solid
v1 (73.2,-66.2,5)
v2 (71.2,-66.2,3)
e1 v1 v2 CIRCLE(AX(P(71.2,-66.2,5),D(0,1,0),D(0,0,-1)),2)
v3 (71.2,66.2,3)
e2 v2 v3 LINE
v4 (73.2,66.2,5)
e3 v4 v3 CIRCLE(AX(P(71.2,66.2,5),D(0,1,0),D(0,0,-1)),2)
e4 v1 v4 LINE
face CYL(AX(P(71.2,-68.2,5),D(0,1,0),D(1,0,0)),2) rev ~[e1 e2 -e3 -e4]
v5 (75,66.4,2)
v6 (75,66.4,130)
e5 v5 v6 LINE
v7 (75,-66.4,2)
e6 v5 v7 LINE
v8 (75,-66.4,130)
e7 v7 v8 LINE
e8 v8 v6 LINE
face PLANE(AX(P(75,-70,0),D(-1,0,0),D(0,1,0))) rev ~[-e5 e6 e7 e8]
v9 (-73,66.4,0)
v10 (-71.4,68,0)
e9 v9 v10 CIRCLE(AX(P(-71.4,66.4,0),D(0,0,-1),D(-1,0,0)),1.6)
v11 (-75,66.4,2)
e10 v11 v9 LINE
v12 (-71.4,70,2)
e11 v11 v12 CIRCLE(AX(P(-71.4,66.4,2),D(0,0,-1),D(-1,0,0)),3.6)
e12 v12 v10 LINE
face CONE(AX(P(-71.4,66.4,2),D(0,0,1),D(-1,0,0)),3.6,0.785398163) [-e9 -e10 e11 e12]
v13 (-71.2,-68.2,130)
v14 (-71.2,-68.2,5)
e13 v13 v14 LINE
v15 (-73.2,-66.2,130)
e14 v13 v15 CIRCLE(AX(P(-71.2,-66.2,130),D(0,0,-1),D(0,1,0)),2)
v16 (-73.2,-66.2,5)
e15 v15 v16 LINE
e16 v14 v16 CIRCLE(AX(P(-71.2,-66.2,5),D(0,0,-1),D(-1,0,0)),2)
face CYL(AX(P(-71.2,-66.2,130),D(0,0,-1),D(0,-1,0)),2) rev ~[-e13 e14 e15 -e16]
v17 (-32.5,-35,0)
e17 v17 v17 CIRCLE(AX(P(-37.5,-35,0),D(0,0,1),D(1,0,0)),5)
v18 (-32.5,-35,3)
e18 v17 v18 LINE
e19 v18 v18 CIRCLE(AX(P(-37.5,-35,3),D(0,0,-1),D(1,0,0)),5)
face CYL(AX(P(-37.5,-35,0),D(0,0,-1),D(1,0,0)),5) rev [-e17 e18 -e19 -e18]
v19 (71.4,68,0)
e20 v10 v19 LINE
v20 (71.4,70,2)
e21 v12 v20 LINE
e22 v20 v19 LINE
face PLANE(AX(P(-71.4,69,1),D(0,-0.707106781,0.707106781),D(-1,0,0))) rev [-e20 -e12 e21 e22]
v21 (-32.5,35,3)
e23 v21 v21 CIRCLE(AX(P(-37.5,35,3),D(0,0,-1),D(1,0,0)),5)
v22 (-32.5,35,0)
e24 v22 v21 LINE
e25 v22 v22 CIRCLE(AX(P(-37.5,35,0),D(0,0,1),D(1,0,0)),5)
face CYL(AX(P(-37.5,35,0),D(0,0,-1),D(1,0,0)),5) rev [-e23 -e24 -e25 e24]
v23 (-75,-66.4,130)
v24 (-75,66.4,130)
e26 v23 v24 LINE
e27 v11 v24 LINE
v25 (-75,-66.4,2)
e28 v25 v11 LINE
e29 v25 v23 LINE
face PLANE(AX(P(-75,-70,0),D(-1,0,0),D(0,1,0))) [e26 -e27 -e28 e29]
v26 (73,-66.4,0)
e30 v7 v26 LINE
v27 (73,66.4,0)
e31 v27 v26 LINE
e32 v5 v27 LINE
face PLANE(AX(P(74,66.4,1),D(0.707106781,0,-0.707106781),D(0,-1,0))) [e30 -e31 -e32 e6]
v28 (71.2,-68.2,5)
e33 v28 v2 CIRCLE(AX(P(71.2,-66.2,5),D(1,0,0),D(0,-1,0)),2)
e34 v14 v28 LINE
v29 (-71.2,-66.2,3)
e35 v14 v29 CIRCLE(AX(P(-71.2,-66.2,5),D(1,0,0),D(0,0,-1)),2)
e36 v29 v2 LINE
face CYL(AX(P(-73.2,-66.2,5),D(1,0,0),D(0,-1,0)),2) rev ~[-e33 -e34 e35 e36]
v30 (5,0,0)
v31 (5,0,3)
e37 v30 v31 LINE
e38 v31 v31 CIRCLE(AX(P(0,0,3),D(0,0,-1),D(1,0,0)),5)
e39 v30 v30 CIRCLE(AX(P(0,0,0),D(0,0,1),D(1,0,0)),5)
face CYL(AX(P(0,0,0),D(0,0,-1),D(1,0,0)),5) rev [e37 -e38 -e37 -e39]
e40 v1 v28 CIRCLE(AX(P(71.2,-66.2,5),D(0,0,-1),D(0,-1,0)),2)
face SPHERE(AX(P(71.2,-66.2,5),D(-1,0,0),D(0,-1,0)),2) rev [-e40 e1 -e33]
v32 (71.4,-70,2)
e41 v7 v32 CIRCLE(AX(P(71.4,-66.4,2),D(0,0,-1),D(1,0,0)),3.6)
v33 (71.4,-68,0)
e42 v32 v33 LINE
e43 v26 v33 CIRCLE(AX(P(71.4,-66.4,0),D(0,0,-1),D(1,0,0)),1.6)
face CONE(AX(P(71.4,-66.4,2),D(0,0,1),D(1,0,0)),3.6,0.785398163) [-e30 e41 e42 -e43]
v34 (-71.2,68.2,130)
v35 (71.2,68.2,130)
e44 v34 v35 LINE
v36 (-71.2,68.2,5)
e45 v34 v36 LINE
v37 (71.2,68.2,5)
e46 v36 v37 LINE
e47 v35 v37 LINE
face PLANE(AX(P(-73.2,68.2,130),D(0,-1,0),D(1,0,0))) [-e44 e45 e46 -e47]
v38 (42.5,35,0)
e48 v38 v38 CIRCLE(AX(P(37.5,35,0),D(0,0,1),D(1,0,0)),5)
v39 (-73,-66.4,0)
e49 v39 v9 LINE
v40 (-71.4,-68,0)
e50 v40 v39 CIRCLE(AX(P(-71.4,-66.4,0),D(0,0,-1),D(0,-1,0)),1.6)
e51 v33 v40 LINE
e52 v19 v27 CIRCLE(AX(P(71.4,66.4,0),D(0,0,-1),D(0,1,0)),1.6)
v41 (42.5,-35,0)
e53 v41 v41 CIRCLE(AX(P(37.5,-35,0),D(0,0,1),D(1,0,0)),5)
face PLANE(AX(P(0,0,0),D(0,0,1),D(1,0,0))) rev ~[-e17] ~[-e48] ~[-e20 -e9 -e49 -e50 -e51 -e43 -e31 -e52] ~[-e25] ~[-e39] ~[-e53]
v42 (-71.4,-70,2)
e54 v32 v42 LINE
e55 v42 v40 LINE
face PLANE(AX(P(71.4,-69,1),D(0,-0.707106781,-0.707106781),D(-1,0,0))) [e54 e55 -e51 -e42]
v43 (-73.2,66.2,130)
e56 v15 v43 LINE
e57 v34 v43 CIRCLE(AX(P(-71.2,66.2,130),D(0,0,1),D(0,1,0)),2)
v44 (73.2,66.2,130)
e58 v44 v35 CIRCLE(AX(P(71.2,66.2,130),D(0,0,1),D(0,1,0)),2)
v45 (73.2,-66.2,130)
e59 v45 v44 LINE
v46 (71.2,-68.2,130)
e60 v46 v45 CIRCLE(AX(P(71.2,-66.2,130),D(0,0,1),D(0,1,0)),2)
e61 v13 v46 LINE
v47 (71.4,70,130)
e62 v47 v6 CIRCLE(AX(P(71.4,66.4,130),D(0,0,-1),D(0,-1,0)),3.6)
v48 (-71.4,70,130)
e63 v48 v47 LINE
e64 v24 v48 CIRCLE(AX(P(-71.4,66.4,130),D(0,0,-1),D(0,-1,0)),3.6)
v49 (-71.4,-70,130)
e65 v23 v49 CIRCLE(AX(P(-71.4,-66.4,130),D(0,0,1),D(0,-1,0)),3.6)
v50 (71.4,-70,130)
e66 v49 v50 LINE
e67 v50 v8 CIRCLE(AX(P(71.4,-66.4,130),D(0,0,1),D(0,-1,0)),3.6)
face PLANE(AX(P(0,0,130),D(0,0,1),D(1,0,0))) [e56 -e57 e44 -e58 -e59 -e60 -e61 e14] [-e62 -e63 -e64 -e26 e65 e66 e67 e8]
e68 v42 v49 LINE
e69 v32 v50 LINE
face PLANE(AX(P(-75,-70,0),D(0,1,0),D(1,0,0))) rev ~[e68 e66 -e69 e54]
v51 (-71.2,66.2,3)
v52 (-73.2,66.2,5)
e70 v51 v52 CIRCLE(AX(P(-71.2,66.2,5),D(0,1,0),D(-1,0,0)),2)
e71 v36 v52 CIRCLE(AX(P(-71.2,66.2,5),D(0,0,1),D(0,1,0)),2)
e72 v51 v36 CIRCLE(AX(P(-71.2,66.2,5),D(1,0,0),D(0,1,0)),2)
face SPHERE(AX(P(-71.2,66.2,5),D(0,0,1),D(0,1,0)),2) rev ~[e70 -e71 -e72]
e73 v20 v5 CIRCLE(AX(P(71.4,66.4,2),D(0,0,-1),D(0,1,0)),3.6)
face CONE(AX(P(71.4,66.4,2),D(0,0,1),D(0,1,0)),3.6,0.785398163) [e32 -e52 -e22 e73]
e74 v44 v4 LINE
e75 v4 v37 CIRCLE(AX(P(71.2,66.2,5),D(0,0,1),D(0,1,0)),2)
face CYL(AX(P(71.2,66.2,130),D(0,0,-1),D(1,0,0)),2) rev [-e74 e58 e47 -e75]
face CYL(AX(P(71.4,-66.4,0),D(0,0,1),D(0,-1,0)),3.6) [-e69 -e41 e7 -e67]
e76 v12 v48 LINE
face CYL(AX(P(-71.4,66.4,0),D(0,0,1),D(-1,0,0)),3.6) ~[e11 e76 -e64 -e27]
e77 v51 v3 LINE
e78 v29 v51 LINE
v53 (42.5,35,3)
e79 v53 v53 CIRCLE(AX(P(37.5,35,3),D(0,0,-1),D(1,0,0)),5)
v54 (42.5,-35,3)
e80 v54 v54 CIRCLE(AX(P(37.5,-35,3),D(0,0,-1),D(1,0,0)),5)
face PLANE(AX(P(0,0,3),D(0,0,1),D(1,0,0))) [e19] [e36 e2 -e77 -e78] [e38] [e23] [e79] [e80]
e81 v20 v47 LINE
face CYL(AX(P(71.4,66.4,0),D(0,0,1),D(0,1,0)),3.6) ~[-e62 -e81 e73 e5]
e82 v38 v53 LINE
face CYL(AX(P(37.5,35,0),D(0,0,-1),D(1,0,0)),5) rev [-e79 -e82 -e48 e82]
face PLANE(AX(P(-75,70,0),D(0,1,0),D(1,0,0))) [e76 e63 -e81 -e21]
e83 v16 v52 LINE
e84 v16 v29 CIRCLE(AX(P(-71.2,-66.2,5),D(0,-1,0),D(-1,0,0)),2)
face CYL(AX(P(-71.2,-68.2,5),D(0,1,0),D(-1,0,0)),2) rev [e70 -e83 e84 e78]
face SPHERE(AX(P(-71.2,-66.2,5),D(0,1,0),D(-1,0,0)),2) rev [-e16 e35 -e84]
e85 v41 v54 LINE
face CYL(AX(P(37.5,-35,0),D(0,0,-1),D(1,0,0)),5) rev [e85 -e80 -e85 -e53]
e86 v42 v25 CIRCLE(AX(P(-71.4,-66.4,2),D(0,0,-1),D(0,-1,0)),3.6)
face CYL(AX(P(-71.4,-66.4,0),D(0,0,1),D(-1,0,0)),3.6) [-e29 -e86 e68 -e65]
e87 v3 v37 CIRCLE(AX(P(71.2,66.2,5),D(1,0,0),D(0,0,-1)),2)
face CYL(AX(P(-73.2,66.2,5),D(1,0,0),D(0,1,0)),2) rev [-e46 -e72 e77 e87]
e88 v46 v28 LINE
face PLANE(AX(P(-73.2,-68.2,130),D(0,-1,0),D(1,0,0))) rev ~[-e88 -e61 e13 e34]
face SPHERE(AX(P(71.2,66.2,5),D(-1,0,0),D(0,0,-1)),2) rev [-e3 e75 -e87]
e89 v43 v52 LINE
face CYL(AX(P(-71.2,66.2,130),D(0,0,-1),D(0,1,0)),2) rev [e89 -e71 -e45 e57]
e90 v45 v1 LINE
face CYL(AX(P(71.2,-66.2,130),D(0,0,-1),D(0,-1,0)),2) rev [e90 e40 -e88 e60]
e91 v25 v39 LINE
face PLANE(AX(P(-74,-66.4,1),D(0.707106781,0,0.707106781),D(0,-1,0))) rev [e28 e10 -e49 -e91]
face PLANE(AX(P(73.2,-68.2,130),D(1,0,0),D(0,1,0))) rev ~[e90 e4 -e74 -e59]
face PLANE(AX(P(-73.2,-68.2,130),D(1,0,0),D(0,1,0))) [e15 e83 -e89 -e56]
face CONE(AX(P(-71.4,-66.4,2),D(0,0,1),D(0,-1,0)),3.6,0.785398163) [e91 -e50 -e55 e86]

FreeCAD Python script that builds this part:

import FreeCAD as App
import Part
import Sketcher
Q = App.Units.Quantity


def edges_at(feature, points):
    """Names of the edges that pass closest to the given points."""
    edges = feature.Shape.Edges
    near = lambda p: min(range(len(edges)), key=lambda i: edges[i].distToShape(Part.Vertex(*p))[0])
    return sorted({f"Edge{near(p) + 1}" for p in points})


def add_polygon(sketch, points):
    """Adds a closed chain of lines whose ends are joined by coincident constraints."""
    first, n = sketch.GeometryCount, len(points)
    for a, b in zip(points, points[1:] + points[:1]):
        sketch.addGeometry(Part.LineSegment(App.Vector(*a, 0), App.Vector(*b, 0)), False)
    for i in range(n):
        sketch.addConstraint(Sketcher.Constraint("Coincident", first + i, 2, first + (i + 1) % n, 1))

doc = App.newDocument("Part")
body = doc.addObject("PartDesign::Body", "Body")

sketch1 = doc.addObject("Sketcher::SketchObject", "Sketch")
body.addObject(sketch1)
sketch1.AttachmentSupport = (doc.XY_Plane, [""])
sketch1.MapMode = "FlatFace"
add_polygon(sketch1, [(-75, 70), (-75, -70), (75, -70), (75, 70)])
sketch1.addConstraint(Sketcher.Constraint("Vertical", 0))
sketch1.addConstraint(Sketcher.Constraint("Horizontal", 1))
sketch1.addConstraint(Sketcher.Constraint("Vertical", 2))
sketch1.addConstraint(Sketcher.Constraint("Horizontal", 3))
sketch1.addConstraint(Sketcher.Constraint("Symmetric", 0, 2, 2, 2, -1, 1))
sketch1.addConstraint(Sketcher.Constraint("DistanceX", 1, 1, 1, 2, Q("150 mm")))
sketch1.addConstraint(Sketcher.Constraint("DistanceY", 0, 2, 0, 1, Q("140 mm")))
pad1 = doc.addObject("PartDesign::Pad", "Pad")
body.addObject(pad1)
pad1.Profile = sketch1
pad1.Length = 130

sketch2 = doc.addObject("Sketcher::SketchObject", "Sketch001")
body.addObject(sketch2)
sketch2.AttachmentSupport = (doc.XY_Plane, [""])
sketch2.MapMode = "FlatFace"
sketch2.AttachmentOffset = App.Placement(App.Vector(0, 0, 130), App.Rotation())
add_polygon(sketch2, [(-73, 68), (-73, -68), (73, -68), (73, 68)])
sketch2.addConstraint(Sketcher.Constraint("Vertical", 0))
sketch2.addConstraint(Sketcher.Constraint("Horizontal", 1))
sketch2.addConstraint(Sketcher.Constraint("Vertical", 2))
sketch2.addConstraint(Sketcher.Constraint("Horizontal", 3))
sketch2.addConstraint(Sketcher.Constraint("Symmetric", 0, 2, 2, 2, -1, 1))
sketch2.addConstraint(Sketcher.Constraint("DistanceX", 1, 1, 1, 2, Q("146.4 mm")))
sketch2.addConstraint(Sketcher.Constraint("DistanceY", 0, 2, 0, 1, Q("136.4 mm")))
pocket1 = doc.addObject("PartDesign::Pocket", "Pocket")
body.addObject(pocket1)
pocket1.Profile = sketch2
pocket1.Length = 127

sketch3 = doc.addObject("Sketcher::SketchObject", "Sketch002")
body.addObject(sketch3)
sketch3.AttachmentSupport = (doc.XY_Plane, [""])
sketch3.MapMode = "FlatFace"
sketch3.addGeometry(Part.Circle(App.Vector(-38, 35, 0), App.Vector(0, 0, 1), 5), False)
sketch3.addGeometry(Part.Circle(App.Vector(38, 35, 0), App.Vector(0, 0, 1), 5), False)
sketch3.addGeometry(Part.Circle(App.Vector(38, -35, 0), App.Vector(0, 0, 1), 5), False)
sketch3.addGeometry(Part.Circle(App.Vector(-38, -35, 0), App.Vector(0, 0, 1), 5), False)
sketch3.addGeometry(Part.Circle(App.Vector(0, 0, 0), App.Vector(0, 0, 1), 5), False)
sketch3.addConstraint(Sketcher.Constraint("Coincident", 4, 3, -1, 1))
sketch3.addConstraint(Sketcher.Constraint("Equal", 0, 1))
sketch3.addConstraint(Sketcher.Constraint("Equal", 1, 2))
sketch3.addConstraint(Sketcher.Constraint("Equal", 2, 3))
sketch3.addConstraint(Sketcher.Constraint("Equal", 3, 4))
sketch3.addConstraint(Sketcher.Constraint("Symmetric", 0, 3, 2, 3, -1, 1))
sketch3.addConstraint(Sketcher.Constraint("Symmetric", 1, 3, 3, 3, -1, 1))
sketch3.addConstraint(Sketcher.Constraint("Symmetric", 0, 3, 1, 3, -2))
sketch3.addConstraint(Sketcher.Constraint("Diameter", 0, Q("10 mm")))
sketch3.addConstraint(Sketcher.Constraint("DistanceY", -1, 1, 0, 3, Q("35 mm")))
sketch3.addConstraint(Sketcher.Constraint("DistanceX", 0, 3, 1, 3, Q("75 mm")))
pocket2 = doc.addObject("PartDesign::Pocket", "Pocket001")
body.addObject(pocket2)
pocket2.Profile = sketch3
pocket2.Type = "ThroughAll"
pocket2.Reversed = True
doc.recompute()

fillet = doc.addObject("PartDesign::Fillet", "Fillet")
body.addObject(fillet)
fillet.Base = (pocket2, edges_at(pocket2, [
    (-73.2, 68.2, 66.5),
    (0, 68.2, 3),
    (-73.2, 0, 3),
    (-73.2, -68.2, 66.5),
    (0, -68.2, 3),
    (73.2, -68.2, 66.5),
    (73.2, 0, 3),
    (73.2, 68.2, 66.5),
]))
fillet.Radius = 2
doc.recompute()

fillet2 = doc.addObject("PartDesign::Fillet", "Fillet001")
body.addObject(fillet2)
fillet2.Base = (fillet, edges_at(fillet, [
    (-75, -70, 65),
    (75, -70, 65),
    (75, 70, 65),
    (-75, 70, 65),
]))
fillet2.Radius = 3.6
doc.recompute()

chamfer = doc.addObject("PartDesign::Chamfer", "Chamfer")
body.addObject(chamfer)
chamfer.Base = (fillet2, edges_at(fillet2, [(0, 70, 0)]))
chamfer.Size = 2

doc.recompute()
